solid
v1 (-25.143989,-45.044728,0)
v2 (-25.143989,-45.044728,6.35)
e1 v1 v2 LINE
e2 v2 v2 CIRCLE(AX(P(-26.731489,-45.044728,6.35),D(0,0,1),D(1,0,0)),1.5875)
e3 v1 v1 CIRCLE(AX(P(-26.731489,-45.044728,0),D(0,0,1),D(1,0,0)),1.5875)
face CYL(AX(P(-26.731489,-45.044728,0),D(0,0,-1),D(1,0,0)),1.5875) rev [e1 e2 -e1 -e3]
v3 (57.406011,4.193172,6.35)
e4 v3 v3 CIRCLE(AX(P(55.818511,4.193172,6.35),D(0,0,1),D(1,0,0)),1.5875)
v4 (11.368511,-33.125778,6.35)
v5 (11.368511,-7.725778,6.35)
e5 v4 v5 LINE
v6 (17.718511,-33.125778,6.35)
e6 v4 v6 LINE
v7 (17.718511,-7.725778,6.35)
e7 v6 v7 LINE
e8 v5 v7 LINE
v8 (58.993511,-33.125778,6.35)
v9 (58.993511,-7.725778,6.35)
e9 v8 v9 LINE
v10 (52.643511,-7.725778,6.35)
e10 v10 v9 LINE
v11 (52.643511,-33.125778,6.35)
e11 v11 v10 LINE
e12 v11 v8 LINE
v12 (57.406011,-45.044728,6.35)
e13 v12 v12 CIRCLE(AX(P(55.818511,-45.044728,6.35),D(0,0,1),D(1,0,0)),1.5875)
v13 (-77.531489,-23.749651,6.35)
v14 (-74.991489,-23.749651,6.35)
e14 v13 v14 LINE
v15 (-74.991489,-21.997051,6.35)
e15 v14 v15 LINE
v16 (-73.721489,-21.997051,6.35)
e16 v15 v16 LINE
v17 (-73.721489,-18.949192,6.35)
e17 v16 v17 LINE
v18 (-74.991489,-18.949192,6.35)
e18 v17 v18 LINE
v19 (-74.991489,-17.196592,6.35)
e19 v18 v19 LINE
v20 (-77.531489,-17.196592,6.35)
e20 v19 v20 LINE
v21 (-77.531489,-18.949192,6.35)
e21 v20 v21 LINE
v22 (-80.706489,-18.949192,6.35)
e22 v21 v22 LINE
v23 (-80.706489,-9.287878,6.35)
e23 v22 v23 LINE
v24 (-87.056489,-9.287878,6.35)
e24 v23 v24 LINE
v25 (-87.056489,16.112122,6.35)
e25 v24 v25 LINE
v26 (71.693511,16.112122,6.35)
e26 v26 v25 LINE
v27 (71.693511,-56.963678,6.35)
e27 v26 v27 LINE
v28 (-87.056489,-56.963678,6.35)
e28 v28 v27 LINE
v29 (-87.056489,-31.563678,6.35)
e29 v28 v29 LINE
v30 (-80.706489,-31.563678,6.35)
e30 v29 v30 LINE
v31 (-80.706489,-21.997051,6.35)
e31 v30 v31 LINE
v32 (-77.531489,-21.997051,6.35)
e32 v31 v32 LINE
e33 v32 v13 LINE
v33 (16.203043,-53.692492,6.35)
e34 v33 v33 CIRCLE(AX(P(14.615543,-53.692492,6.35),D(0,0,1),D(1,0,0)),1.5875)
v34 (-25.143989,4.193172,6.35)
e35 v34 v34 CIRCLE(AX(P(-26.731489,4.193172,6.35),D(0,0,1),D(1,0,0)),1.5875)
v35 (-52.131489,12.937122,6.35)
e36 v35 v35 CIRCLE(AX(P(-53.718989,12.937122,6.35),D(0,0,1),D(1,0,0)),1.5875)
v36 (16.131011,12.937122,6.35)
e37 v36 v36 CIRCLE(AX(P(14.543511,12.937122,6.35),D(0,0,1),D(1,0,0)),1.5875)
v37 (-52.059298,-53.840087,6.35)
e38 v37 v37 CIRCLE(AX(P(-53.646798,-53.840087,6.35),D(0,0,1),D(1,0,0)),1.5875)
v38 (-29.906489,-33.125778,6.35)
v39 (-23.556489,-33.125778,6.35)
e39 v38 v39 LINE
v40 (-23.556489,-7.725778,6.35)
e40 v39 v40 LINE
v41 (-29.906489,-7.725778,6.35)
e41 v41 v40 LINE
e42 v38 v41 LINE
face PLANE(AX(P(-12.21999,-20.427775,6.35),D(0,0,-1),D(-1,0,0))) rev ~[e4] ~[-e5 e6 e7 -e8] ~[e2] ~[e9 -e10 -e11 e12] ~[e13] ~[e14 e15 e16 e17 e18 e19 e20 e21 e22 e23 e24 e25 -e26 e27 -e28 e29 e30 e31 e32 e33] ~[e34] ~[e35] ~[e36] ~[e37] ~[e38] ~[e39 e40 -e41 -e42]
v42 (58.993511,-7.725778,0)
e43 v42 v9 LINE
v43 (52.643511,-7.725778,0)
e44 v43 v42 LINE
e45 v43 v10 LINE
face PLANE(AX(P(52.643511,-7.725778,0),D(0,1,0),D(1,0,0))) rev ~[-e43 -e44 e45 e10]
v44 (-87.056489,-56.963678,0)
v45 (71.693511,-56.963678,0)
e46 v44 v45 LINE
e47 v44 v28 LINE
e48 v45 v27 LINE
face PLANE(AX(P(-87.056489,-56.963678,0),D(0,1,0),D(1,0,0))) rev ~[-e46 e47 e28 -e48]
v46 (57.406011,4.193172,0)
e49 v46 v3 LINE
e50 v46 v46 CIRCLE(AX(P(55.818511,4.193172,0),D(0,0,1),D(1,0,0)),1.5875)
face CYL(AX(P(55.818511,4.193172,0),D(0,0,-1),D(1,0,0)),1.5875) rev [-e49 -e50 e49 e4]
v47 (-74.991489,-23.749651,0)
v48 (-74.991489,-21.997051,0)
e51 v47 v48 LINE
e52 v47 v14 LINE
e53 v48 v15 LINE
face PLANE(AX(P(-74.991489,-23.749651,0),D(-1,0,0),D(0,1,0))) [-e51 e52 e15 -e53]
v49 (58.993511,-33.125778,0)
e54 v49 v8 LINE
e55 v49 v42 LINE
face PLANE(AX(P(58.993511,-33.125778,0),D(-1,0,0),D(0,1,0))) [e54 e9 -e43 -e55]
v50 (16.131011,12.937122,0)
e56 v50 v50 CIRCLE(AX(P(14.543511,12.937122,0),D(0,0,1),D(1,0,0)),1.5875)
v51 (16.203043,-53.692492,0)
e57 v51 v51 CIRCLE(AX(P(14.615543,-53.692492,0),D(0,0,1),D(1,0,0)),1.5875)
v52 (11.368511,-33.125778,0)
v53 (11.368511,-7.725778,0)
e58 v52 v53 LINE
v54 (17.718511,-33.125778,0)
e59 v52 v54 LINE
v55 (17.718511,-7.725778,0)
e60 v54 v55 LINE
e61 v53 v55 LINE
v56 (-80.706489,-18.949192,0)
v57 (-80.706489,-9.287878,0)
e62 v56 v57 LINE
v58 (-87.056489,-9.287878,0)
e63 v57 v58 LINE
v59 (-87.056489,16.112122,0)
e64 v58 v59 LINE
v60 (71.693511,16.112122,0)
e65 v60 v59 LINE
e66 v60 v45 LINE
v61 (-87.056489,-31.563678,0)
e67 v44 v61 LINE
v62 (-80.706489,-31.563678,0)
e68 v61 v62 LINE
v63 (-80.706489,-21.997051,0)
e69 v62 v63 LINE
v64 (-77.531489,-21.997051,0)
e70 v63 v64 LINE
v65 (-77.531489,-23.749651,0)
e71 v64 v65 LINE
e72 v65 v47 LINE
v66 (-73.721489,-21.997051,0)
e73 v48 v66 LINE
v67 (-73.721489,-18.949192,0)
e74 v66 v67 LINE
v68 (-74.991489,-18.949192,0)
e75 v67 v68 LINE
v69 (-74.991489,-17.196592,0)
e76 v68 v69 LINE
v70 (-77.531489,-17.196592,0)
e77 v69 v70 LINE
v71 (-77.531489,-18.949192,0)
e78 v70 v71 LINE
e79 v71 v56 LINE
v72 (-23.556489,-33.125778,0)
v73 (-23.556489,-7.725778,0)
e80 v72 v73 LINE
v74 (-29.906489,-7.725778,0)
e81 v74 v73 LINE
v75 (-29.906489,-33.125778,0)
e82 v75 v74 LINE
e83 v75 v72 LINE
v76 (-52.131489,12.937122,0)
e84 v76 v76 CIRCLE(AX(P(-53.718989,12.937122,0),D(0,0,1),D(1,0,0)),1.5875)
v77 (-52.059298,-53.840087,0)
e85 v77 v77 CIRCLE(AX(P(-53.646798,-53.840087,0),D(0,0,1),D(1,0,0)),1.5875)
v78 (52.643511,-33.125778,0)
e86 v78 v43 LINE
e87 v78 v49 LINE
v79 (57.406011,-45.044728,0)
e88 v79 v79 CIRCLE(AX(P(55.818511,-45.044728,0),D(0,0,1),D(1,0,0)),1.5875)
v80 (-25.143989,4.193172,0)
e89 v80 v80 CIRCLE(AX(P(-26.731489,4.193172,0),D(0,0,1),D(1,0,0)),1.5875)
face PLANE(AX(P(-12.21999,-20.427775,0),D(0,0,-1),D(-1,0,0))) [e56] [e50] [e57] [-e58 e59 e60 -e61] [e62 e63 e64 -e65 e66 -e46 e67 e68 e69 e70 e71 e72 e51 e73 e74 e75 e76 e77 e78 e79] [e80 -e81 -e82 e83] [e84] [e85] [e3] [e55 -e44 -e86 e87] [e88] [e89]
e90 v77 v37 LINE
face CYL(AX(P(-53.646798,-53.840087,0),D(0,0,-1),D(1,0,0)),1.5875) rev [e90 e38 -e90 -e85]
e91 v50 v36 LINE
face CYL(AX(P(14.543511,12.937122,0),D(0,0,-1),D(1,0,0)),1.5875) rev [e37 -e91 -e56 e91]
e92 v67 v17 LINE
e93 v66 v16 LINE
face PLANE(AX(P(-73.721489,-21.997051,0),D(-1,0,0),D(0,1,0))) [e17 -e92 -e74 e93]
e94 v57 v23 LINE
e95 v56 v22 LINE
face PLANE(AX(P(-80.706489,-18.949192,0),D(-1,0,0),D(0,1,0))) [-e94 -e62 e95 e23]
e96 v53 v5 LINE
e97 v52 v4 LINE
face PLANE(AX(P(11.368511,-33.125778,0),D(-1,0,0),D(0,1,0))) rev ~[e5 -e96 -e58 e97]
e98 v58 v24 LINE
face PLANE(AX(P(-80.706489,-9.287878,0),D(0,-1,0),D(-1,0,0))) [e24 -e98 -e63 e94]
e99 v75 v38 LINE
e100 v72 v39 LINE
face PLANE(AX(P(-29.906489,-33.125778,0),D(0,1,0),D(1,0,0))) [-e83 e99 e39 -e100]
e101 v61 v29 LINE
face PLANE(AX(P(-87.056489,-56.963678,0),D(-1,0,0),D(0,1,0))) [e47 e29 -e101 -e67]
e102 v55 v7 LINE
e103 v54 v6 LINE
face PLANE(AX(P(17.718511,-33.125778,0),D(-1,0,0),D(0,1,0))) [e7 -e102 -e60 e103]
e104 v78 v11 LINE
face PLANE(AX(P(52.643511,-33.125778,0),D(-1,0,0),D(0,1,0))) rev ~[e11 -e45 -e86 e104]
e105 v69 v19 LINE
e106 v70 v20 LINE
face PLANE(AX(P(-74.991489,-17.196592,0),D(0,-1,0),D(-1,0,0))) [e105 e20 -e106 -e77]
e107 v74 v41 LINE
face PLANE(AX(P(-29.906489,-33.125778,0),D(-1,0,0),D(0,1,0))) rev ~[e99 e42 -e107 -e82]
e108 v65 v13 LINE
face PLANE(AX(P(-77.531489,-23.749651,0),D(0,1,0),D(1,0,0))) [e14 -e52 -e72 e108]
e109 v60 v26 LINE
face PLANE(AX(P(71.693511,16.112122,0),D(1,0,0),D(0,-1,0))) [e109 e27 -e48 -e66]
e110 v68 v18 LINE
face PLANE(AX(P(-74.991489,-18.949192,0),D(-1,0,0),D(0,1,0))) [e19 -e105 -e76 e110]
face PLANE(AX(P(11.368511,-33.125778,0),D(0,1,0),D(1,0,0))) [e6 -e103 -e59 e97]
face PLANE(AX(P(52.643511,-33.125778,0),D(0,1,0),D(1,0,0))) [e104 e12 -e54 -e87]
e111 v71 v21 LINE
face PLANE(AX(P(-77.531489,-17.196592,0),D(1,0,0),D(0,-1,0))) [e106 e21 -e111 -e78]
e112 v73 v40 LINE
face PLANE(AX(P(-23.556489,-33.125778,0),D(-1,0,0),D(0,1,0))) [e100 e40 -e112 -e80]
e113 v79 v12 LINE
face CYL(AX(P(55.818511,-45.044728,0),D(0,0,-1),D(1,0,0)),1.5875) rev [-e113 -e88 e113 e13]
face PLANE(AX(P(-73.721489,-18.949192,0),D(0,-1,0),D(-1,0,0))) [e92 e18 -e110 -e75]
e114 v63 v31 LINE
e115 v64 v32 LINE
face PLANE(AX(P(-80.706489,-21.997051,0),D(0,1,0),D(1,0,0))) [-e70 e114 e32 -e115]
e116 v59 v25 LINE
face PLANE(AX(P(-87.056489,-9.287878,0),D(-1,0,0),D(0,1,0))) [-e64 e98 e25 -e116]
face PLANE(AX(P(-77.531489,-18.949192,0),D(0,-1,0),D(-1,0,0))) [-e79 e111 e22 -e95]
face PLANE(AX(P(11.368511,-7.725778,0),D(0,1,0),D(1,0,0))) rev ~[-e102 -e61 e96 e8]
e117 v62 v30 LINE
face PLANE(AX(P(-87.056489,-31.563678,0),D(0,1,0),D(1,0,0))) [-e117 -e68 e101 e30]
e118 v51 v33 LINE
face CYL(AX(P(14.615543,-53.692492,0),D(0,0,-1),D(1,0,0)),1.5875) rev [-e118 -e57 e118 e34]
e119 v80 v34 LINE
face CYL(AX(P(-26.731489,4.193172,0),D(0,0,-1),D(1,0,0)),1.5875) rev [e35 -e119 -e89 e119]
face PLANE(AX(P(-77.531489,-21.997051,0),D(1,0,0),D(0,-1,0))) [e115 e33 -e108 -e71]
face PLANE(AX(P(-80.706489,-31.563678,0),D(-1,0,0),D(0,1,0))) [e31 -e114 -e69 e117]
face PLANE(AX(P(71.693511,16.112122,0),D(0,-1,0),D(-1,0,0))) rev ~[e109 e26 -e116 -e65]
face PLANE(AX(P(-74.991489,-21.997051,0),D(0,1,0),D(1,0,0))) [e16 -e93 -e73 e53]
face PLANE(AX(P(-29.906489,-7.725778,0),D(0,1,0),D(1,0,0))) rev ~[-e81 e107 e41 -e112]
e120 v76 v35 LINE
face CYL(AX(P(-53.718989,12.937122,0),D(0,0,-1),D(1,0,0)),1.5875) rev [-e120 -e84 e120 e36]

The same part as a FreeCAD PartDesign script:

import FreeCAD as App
import Part
import Sketcher

V = App.Vector
Q = App.Units.Quantity

doc = App.newDocument("Part")
params = doc.addObject("Spreadsheet::Sheet", "Params")
for row, (alias, value) in enumerate([
    ("sketch1_height", "1 in"),
    ("sketch1_diameter", "0.125 in"),
    ("sketch1_width", "0.1 in"),
    ("sketch1_width2", "0.25 in"),
    ("sketch1_width3", "6.25 in"),
    ("pad1_length", "0.25 in"),
], start=1):
    params.set(f"A{row}", alias)
    params.set(f"B{row}", "=" + value)
    params.setAlias(f"B{row}", alias)

body = doc.addObject("PartDesign::Body", "Body")

sketch1 = body.newObject("Sketcher::SketchObject", "Sketch")
sketch1.AttachmentSupport = (doc.getObject("XY_Plane"), [""])
sketch1.MapMode = "FlatFace"
sketch1.addGeometry([
    Part.LineSegment(V(-80.706489, -21.997051, 0), V(-80.706489, -31.563678, 0)),
    Part.LineSegment(V(-80.706489, -31.563678, 0), V(-87.056489, -31.563678, 0)),
    Part.LineSegment(V(-87.056489, -31.563678, 0), V(-87.056489, -56.963678, 0)),
    Part.LineSegment(V(-87.056489, -56.963678, 0), V(71.693511, -56.963678, 0)),
    Part.LineSegment(V(71.693511, -56.963678, 0), V(71.693511, 16.112122, 0)),
    Part.LineSegment(V(71.693511, 16.112122, 0), V(-87.056489, 16.112122, 0)),
    Part.LineSegment(V(-87.056489, 16.112122, 0), V(-87.056489, -9.287878, 0)),
    Part.LineSegment(V(-87.056489, -9.287878, 0), V(-80.706489, -9.287878, 0)),
    Part.LineSegment(V(-80.706489, -9.287878, 0), V(-80.706489, -18.949192, 0)),
    Part.LineSegment(V(-80.706489, -18.949192, 0), V(-77.531489, -18.949192, 0)),
    Part.LineSegment(V(-77.531489, -18.949192, 0), V(-77.531489, -17.196592, 0)),
    Part.LineSegment(V(-77.531489, -17.196592, 0), V(-74.991489, -17.196592, 0)),
    Part.LineSegment(V(-74.991489, -17.196592, 0), V(-74.991489, -18.949192, 0)),
    Part.LineSegment(V(-74.991489, -18.949192, 0), V(-73.721489, -18.949192, 0)),
    Part.LineSegment(V(-73.721489, -18.949192, 0), V(-73.721489, -21.997051, 0)),
    Part.LineSegment(V(-73.721489, -21.997051, 0), V(-74.991489, -21.997051, 0)),
    Part.LineSegment(V(-74.991489, -21.997051, 0), V(-74.991489, -23.749651, 0)),
    Part.LineSegment(V(-74.991489, -23.749651, 0), V(-77.531489, -23.749651, 0)),
    Part.LineSegment(V(-77.531489, -23.749651, 0), V(-77.531489, -21.997051, 0)),
    Part.LineSegment(V(-77.531489, -21.997051, 0), V(-80.706489, -21.997051, 0)),
    Part.Circle(V(55.818511, -45.044728, 0), V(0, 0, 1), 1.5875),
    Part.Circle(V(14.615543, -53.692492, 0), V(0, 0, 1), 1.5875),
    Part.Circle(V(-53.646798, -53.840087, 0), V(0, 0, 1), 1.5875),
    Part.Circle(V(-26.731489, -45.044728, 0), V(0, 0, 1), 1.5875),
    Part.LineSegment(V(52.643511, -33.125778, 0), V(52.643511, -7.725778, 0)),
    Part.LineSegment(V(52.643511, -7.725778, 0), V(58.993511, -7.725778, 0)),
    Part.LineSegment(V(58.993511, -7.725778, 0), V(58.993511, -33.125778, 0)),
    Part.LineSegment(V(58.993511, -33.125778, 0), V(52.643511, -33.125778, 0)),
    Part.LineSegment(V(11.368511, -33.125778, 0), V(11.368511, -7.725778, 0)),
    Part.LineSegment(V(11.368511, -7.725778, 0), V(17.718511, -7.725778, 0)),
    Part.LineSegment(V(17.718511, -7.725778, 0), V(17.718511, -33.125778, 0)),
    Part.LineSegment(V(17.718511, -33.125778, 0), V(11.368511, -33.125778, 0)),
    Part.Circle(V(55.818511, 4.193172, 0), V(0, 0, 1), 1.5875),
    Part.Circle(V(14.543511, 12.937122, 0), V(0, 0, 1), 1.5875),
    Part.LineSegment(V(-29.906489, -33.125778, 0), V(-29.906489, -7.725778, 0)),
    Part.LineSegment(V(-29.906489, -7.725778, 0), V(-23.556489, -7.725778, 0)),
    Part.LineSegment(V(-23.556489, -7.725778, 0), V(-23.556489, -33.125778, 0)),
    Part.LineSegment(V(-23.556489, -33.125778, 0), V(-29.906489, -33.125778, 0)),
    Part.Circle(V(-26.731489, 4.193172, 0), V(0, 0, 1), 1.5875),
    Part.Circle(V(-53.718989, 12.937122, 0), V(0, 0, 1), 1.5875),
], False)
sketch1.addConstraint([
    Sketcher.Constraint("Coincident", 0, 2, 1, 1),
    Sketcher.Constraint("Coincident", 1, 2, 2, 1),
    Sketcher.Constraint("Coincident", 2, 2, 3, 1),
    Sketcher.Constraint("Coincident", 3, 2, 4, 1),
    Sketcher.Constraint("Coincident", 4, 2, 5, 1),
    Sketcher.Constraint("Coincident", 5, 2, 6, 1),
    Sketcher.Constraint("Coincident", 6, 2, 7, 1),
    Sketcher.Constraint("Coincident", 7, 2, 8, 1),
    Sketcher.Constraint("Coincident", 8, 2, 9, 1),
    Sketcher.Constraint("Coincident", 9, 2, 10, 1),
    Sketcher.Constraint("Coincident", 10, 2, 11, 1),
    Sketcher.Constraint("Coincident", 11, 2, 12, 1),
    Sketcher.Constraint("Coincident", 12, 2, 13, 1),
    Sketcher.Constraint("Coincident", 13, 2, 14, 1),
    Sketcher.Constraint("Coincident", 14, 2, 15, 1),
    Sketcher.Constraint("Coincident", 15, 2, 16, 1),
    Sketcher.Constraint("Coincident", 16, 2, 17, 1),
    Sketcher.Constraint("Coincident", 17, 2, 18, 1),
    Sketcher.Constraint("Coincident", 18, 2, 19, 1),
    Sketcher.Constraint("Coincident", 19, 2, 0, 1),
    Sketcher.Constraint("Coincident", 24, 2, 25, 1),
    Sketcher.Constraint("Coincident", 25, 2, 26, 1),
    Sketcher.Constraint("Coincident", 26, 2, 27, 1),
    Sketcher.Constraint("Coincident", 27, 2, 24, 1),
    Sketcher.Constraint("Coincident", 28, 2, 29, 1),
    Sketcher.Constraint("Coincident", 29, 2, 30, 1),
    Sketcher.Constraint("Coincident", 30, 2, 31, 1),
    Sketcher.Constraint("Coincident", 31, 2, 28, 1),
    Sketcher.Constraint("Coincident", 34, 2, 35, 1),
    Sketcher.Constraint("Coincident", 35, 2, 36, 1),
    Sketcher.Constraint("Coincident", 36, 2, 37, 1),
    Sketcher.Constraint("Coincident", 37, 2, 34, 1),
    Sketcher.Constraint("Vertical", 0),
    Sketcher.Constraint("Horizontal", 1),
    Sketcher.Constraint("Vertical", 2),
    Sketcher.Constraint("Horizontal", 3),
    Sketcher.Constraint("Vertical", 4),
    Sketcher.Constraint("Horizontal", 5),
    Sketcher.Constraint("Vertical", 6),
    Sketcher.Constraint("Horizontal", 7),
    Sketcher.Constraint("Vertical", 8),
    Sketcher.Constraint("Horizontal", 9),
    Sketcher.Constraint("Vertical", 10),
    Sketcher.Constraint("Horizontal", 11),
    Sketcher.Constraint("Vertical", 12),
    Sketcher.Constraint("Horizontal", 13),
    Sketcher.Constraint("Vertical", 14),
    Sketcher.Constraint("Horizontal", 15),
    Sketcher.Constraint("Vertical", 16),
    Sketcher.Constraint("Horizontal", 17),
    Sketcher.Constraint("Vertical", 18),
    Sketcher.Constraint("Horizontal", 19),
    Sketcher.Constraint("Vertical", 24),
    Sketcher.Constraint("Horizontal", 25),
    Sketcher.Constraint("Vertical", 26),
    Sketcher.Constraint("Horizontal", 27),
    Sketcher.Constraint("Vertical", 28),
    Sketcher.Constraint("Horizontal", 29),
    Sketcher.Constraint("Vertical", 30),
    Sketcher.Constraint("Horizontal", 31),
    Sketcher.Constraint("Vertical", 34),
    Sketcher.Constraint("Horizontal", 35),
    Sketcher.Constraint("Vertical", 36),
    Sketcher.Constraint("Horizontal", 37),
    Sketcher.Constraint("Equal", 20, 21),
    Sketcher.Constraint("Equal", 21, 22),
    Sketcher.Constraint("Equal", 22, 23),
    Sketcher.Constraint("Equal", 23, 32),
    Sketcher.Constraint("Equal", 32, 33),
    Sketcher.Constraint("Equal", 33, 38),
    Sketcher.Constraint("Equal", 38, 39),
    Sketcher.Constraint("Horizontal", 20, 3, 23, 3),
    Sketcher.Constraint("Horizontal", 32, 3, 38, 3),
    Sketcher.Constraint("Horizontal", 33, 3, 39, 3),
    Sketcher.Constraint("Horizontal", 9, 2, 12, 2),
    Sketcher.Constraint("Horizontal", 15, 2, 18, 2),
    Sketcher.Constraint("Horizontal", 25, 2, 28, 2),
    Sketcher.Constraint("Horizontal", 27, 2, 30, 2),
    Sketcher.Constraint("Horizontal", 29, 2, 34, 2),
    Sketcher.Constraint("Horizontal", 31, 2, 36, 2),
    Sketcher.Constraint("Vertical", 20, 3, 32, 3),
    Sketcher.Constraint("Vertical", 23, 3, 38, 3),
    Sketcher.Constraint("Vertical", 2, 2, 5, 2),
    Sketcher.Constraint("Vertical", 0, 2, 7, 2),
    Sketcher.Constraint("Vertical", 12, 2, 15, 2),
    Sketcher.Constraint("Vertical", 10, 2, 17, 2),
    Sketcher.Constraint("Equal", 7, 25),
    Sketcher.Constraint("Equal", 27, 29),
    Sketcher.Constraint("Equal", 31, 35),
    Sketcher.Constraint("Equal", 2, 6),
    Sketcher.Constraint("Equal", 12, 16),
    Sketcher.Constraint("Equal", 6, 24),
    Sketcher.Constraint("DistanceY", 2, 2, 2, 1, Q("1 in")),
    Sketcher.Constraint("Diameter", 20, Q("0.125 in")),
    Sketcher.Constraint("DistanceX", 11, 1, 11, 2, Q("0.1 in")),
    Sketcher.Constraint("DistanceX", 1, 2, 1, 1, Q("0.25 in")),
    Sketcher.Constraint("DistanceX", 3, 1, 3, 2, Q("6.25 in")),
    Sketcher.Constraint("DistanceX", 13, 1, 13, 2, Q("0.05 in")),
    Sketcher.Constraint("DistanceX", 33, 3, 24, 2, Q("1.5 in")),
    Sketcher.Constraint("DistanceX", 25, 2, 4, 2, Q("0.5 in")),
    Sketcher.Constraint("DistanceX", 38, 3, 28, 2, Q("1.5 in")),
    Sketcher.Constraint("DistanceX", 29, 2, 32, 3, Q("1.5 in")),
    Sketcher.Constraint("DistanceX", 9, 1, 9, 2, Q("0.125 in")),
    Sketcher.Constraint("DistanceY", 4, 1, 4, 2, Q("2.877 in")),
    Sketcher.Constraint("DistanceY", 10, 1, 10, 2, Q("0.069 in")),
    Sketcher.Constraint("DistanceX", 33, 3, 32, 3, Q("1.625 in")),
    Sketcher.Constraint("DistanceX", 39, 3, 38, 3, Q("1.0625 in")),
    Sketcher.Constraint("DistanceY", 0, 2, 39, 3, Q("1.752 in")),
    Sketcher.Constraint("DistanceX", 34, 2, 38, 3, Q("0.125 in")),
    Sketcher.Constraint("DistanceY", 20, 3, 32, 3, Q("1.9385 in")),
    Sketcher.Constraint("DistanceY", 24, 2, 4, 2, Q("0.9385 in")),
    Sketcher.Constraint("DistanceY", 14, 2, 14, 1, 3.047859),
    Sketcher.Constraint("DistanceY", 0, 2, 0, 1, 9.566627),
    Sketcher.Constraint("DistanceX", -1, 1, 20, 3, 55.818511),
    Sketcher.Constraint("DistanceY", 20, 3, -1, 1, 45.044728),
    Sketcher.Constraint("DistanceY", -1, 1, 33, 3, 12.937122),
    Sketcher.Constraint("DistanceX", 21, 3, 20, 3, 41.202968),
    Sketcher.Constraint("DistanceX", 22, 3, 21, 3, 68.26234),
    Sketcher.Constraint("DistanceY", 22, 3, 20, 3, 8.795358),
    Sketcher.Constraint("DistanceY", 21, 3, -1, 1, 53.692492),
])
sketch1.setExpression("Constraints[92]", "Params.sketch1_height")
sketch1.setExpression("Constraints[93]", "Params.sketch1_diameter")
sketch1.setExpression("Constraints[94]", "Params.sketch1_width")
sketch1.setExpression("Constraints[95]", "Params.sketch1_width2")
sketch1.setExpression("Constraints[96]", "Params.sketch1_width3")
pad1 = body.newObject("PartDesign::Pad", "Pad")
pad1.Profile = sketch1
pad1.setExpression("Length", "Params.pad1_length")

doc.recompute()
